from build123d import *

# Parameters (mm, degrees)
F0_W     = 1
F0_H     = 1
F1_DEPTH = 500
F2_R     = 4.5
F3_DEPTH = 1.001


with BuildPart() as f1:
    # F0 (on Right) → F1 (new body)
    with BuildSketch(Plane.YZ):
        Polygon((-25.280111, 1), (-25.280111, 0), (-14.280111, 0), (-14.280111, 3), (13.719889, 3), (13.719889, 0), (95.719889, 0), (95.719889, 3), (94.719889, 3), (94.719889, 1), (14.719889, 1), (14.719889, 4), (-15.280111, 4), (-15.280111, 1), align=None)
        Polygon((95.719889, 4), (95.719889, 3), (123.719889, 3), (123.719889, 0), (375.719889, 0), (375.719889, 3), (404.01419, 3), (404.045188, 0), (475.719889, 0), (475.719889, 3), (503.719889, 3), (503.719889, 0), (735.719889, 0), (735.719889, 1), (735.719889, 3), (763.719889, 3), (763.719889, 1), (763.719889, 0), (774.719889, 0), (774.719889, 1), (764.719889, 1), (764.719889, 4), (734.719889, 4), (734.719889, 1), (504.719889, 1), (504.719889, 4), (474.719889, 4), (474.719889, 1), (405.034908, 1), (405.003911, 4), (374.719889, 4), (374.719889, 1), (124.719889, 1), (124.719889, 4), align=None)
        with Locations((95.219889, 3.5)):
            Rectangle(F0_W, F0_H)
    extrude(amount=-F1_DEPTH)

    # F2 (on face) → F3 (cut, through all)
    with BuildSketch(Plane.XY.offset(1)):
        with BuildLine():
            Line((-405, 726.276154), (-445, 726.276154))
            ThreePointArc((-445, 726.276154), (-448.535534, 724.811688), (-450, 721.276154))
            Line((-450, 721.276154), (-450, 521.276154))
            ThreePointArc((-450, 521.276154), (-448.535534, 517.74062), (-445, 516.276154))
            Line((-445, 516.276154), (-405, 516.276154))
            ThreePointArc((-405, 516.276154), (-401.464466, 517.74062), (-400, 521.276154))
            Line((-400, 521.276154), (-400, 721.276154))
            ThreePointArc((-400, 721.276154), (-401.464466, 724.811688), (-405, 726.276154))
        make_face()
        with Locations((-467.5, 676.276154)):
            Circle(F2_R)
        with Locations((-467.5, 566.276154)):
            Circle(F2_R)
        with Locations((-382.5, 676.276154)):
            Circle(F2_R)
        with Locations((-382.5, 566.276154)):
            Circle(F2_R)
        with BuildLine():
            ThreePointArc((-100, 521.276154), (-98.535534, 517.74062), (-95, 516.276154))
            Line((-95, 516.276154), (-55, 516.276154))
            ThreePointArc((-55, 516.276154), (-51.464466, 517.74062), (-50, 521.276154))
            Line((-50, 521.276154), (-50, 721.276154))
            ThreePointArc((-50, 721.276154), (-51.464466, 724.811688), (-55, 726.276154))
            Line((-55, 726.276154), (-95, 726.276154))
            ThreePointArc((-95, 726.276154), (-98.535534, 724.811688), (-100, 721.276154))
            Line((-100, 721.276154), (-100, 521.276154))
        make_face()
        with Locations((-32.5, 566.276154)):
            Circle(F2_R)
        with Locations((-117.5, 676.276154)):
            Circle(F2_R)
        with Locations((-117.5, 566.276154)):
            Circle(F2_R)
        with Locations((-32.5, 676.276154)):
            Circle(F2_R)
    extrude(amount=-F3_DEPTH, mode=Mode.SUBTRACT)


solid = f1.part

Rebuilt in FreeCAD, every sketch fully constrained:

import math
import FreeCAD as App
import Part
import Sketcher
from FreeCAD import Vector
Q = App.Units.Quantity

doc = App.newDocument("Part")
body = doc.addObject("PartDesign::Body", "Body")

sketch1 = doc.addObject("Sketcher::SketchObject", "Sketch")
body.addObject(sketch1)
sketch1.AttachmentSupport = (doc.YZ_Plane, [""])
sketch1.MapMode = "FlatFace"
sketch1.addGeometry([
    Part.LineSegment(Vector(-15.280111, 1, 0), Vector(-25.280111, 1, 0)),
    Part.LineSegment(Vector(-25.280111, 1, 0), Vector(-25.280111, 0, 0)),
    Part.LineSegment(Vector(-25.280111, 0, 0), Vector(-14.280111, 0, 0)),
    Part.LineSegment(Vector(-14.280111, 0, 0), Vector(-14.280111, 3, 0)),
    Part.LineSegment(Vector(-14.280111, 3, 0), Vector(13.719889, 3, 0)),
    Part.LineSegment(Vector(13.719889, 3, 0), Vector(13.719889, 0, 0)),
    Part.LineSegment(Vector(13.719889, 0, 0), Vector(95.719889, 0, 0)),
    Part.LineSegment(Vector(95.719889, 0, 0), Vector(95.719889, 3, 0)),
    Part.LineSegment(Vector(95.719889, 3, 0), Vector(123.719889, 3, 0)),
    Part.LineSegment(Vector(123.719889, 3, 0), Vector(123.719889, 0, 0)),
    Part.LineSegment(Vector(123.719889, 0, 0), Vector(375.719889, 0, 0)),
    Part.LineSegment(Vector(375.719889, 0, 0), Vector(375.719889, 3, 0)),
    Part.LineSegment(Vector(375.719889, 3, 0), Vector(404.01419, 3, 0)),
    Part.LineSegment(Vector(404.01419, 3, 0), Vector(404.045188, 0, 0)),
    Part.LineSegment(Vector(404.045188, 0, 0), Vector(475.719889, 0, 0)),
    Part.LineSegment(Vector(475.719889, 0, 0), Vector(475.719889, 3, 0)),
    Part.LineSegment(Vector(475.719889, 3, 0), Vector(503.719889, 3, 0)),
    Part.LineSegment(Vector(503.719889, 3, 0), Vector(503.719889, 0, 0)),
    Part.LineSegment(Vector(503.719889, 0, 0), Vector(735.719889, 0, 0)),
    Part.LineSegment(Vector(735.719889, 0, 0), Vector(735.719889, 3, 0)),
    Part.LineSegment(Vector(735.719889, 3, 0), Vector(763.719889, 3, 0)),
    Part.LineSegment(Vector(763.719889, 3, 0), Vector(763.719889, 0, 0)),
    Part.LineSegment(Vector(763.719889, 0, 0), Vector(774.719889, 0, 0)),
    Part.LineSegment(Vector(774.719889, 0, 0), Vector(774.719889, 1, 0)),
    Part.LineSegment(Vector(774.719889, 1, 0), Vector(764.719889, 1, 0)),
    Part.LineSegment(Vector(764.719889, 1, 0), Vector(764.719889, 4, 0)),
    Part.LineSegment(Vector(764.719889, 4, 0), Vector(734.719889, 4, 0)),
    Part.LineSegment(Vector(734.719889, 4, 0), Vector(734.719889, 1, 0)),
    Part.LineSegment(Vector(734.719889, 1, 0), Vector(504.719889, 1, 0)),
    Part.LineSegment(Vector(504.719889, 1, 0), Vector(504.719889, 4, 0)),
    Part.LineSegment(Vector(504.719889, 4, 0), Vector(474.719889, 4, 0)),
    Part.LineSegment(Vector(474.719889, 4, 0), Vector(474.719889, 1, 0)),
    Part.LineSegment(Vector(474.719889, 1, 0), Vector(405.034908, 1, 0)),
    Part.LineSegment(Vector(405.034908, 1, 0), Vector(405.003911, 4, 0)),
    Part.LineSegment(Vector(405.003911, 4, 0), Vector(374.719889, 4, 0)),
    Part.LineSegment(Vector(374.719889, 4, 0), Vector(374.719889, 1, 0)),
    Part.LineSegment(Vector(374.719889, 1, 0), Vector(124.719889, 1, 0)),
    Part.LineSegment(Vector(124.719889, 1, 0), Vector(124.719889, 4, 0)),
    Part.LineSegment(Vector(124.719889, 4, 0), Vector(94.719889, 4, 0)),
    Part.LineSegment(Vector(94.719889, 4, 0), Vector(94.719889, 1, 0)),
    Part.LineSegment(Vector(94.719889, 1, 0), Vector(14.719889, 1, 0)),
    Part.LineSegment(Vector(14.719889, 1, 0), Vector(14.719889, 4, 0)),
    Part.LineSegment(Vector(14.719889, 4, 0), Vector(-15.280111, 4, 0)),
    Part.LineSegment(Vector(-15.280111, 4, 0), Vector(-15.280111, 1, 0)),
], False)
sketch1.addConstraint([
    Sketcher.Constraint("Coincident", 0, 2, 1, 1),
    Sketcher.Constraint("Coincident", 1, 2, 2, 1),
    Sketcher.Constraint("Coincident", 2, 2, 3, 1),
    Sketcher.Constraint("Coincident", 3, 2, 4, 1),
    Sketcher.Constraint("Coincident", 4, 2, 5, 1),
    Sketcher.Constraint("Coincident", 5, 2, 6, 1),
    Sketcher.Constraint("Coincident", 6, 2, 7, 1),
    Sketcher.Constraint("Coincident", 7, 2, 8, 1),
    Sketcher.Constraint("Coincident", 8, 2, 9, 1),
    Sketcher.Constraint("Coincident", 9, 2, 10, 1),
    Sketcher.Constraint("Coincident", 10, 2, 11, 1),
    Sketcher.Constraint("Coincident", 11, 2, 12, 1),
    Sketcher.Constraint("Coincident", 12, 2, 13, 1),
    Sketcher.Constraint("Coincident", 13, 2, 14, 1),
    Sketcher.Constraint("Coincident", 14, 2, 15, 1),
    Sketcher.Constraint("Coincident", 15, 2, 16, 1),
    Sketcher.Constraint("Coincident", 16, 2, 17, 1),
    Sketcher.Constraint("Coincident", 17, 2, 18, 1),
    Sketcher.Constraint("Coincident", 18, 2, 19, 1),
    Sketcher.Constraint("Coincident", 19, 2, 20, 1),
    Sketcher.Constraint("Coincident", 20, 2, 21, 1),
    Sketcher.Constraint("Coincident", 21, 2, 22, 1),
    Sketcher.Constraint("Coincident", 22, 2, 23, 1),
    Sketcher.Constraint("Coincident", 23, 2, 24, 1),
    Sketcher.Constraint("Coincident", 24, 2, 25, 1),
    Sketcher.Constraint("Coincident", 25, 2, 26, 1),
    Sketcher.Constraint("Coincident", 26, 2, 27, 1),
    Sketcher.Constraint("Coincident", 27, 2, 28, 1),
    Sketcher.Constraint("Coincident", 28, 2, 29, 1),
    Sketcher.Constraint("Coincident", 29, 2, 30, 1),
    Sketcher.Constraint("Coincident", 30, 2, 31, 1),
    Sketcher.Constraint("Coincident", 31, 2, 32, 1),
    Sketcher.Constraint("Coincident", 32, 2, 33, 1),
    Sketcher.Constraint("Coincident", 33, 2, 34, 1),
    Sketcher.Constraint("Coincident", 34, 2, 35, 1),
    Sketcher.Constraint("Coincident", 35, 2, 36, 1),
    Sketcher.Constraint("Coincident", 36, 2, 37, 1),
    Sketcher.Constraint("Coincident", 37, 2, 38, 1),
    Sketcher.Constraint("Coincident", 38, 2, 39, 1),
    Sketcher.Constraint("Coincident", 39, 2, 40, 1),
    Sketcher.Constraint("Coincident", 40, 2, 41, 1),
    Sketcher.Constraint("Coincident", 41, 2, 42, 1),
    Sketcher.Constraint("Coincident", 42, 2, 43, 1),
    Sketcher.Constraint("Coincident", 43, 2, 0, 1),
    Sketcher.Constraint("Horizontal", 0),
    Sketcher.Constraint("Vertical", 1),
    Sketcher.Constraint("Horizontal", 2),
    Sketcher.Constraint("Vertical", 3),
    Sketcher.Constraint("Horizontal", 4),
    Sketcher.Constraint("Vertical", 5),
    Sketcher.Constraint("Horizontal", 6),
    Sketcher.Constraint("Vertical", 7),
    Sketcher.Constraint("Horizontal", 8),
    Sketcher.Constraint("Vertical", 9),
    Sketcher.Constraint("Horizontal", 10),
    Sketcher.Constraint("Vertical", 11),
    Sketcher.Constraint("Horizontal", 12),
    Sketcher.Constraint("Horizontal", 14),
    Sketcher.Constraint("Vertical", 15),
    Sketcher.Constraint("Horizontal", 16),
    Sketcher.Constraint("Vertical", 17),
    Sketcher.Constraint("Horizontal", 18),
    Sketcher.Constraint("Vertical", 19),
    Sketcher.Constraint("Horizontal", 20),
    Sketcher.Constraint("Vertical", 21),
    Sketcher.Constraint("Horizontal", 22),
    Sketcher.Constraint("Vertical", 23),
    Sketcher.Constraint("Horizontal", 24),
    Sketcher.Constraint("Vertical", 25),
    Sketcher.Constraint("Horizontal", 26),
    Sketcher.Constraint("Vertical", 27),
    Sketcher.Constraint("Horizontal", 28),
    Sketcher.Constraint("Vertical", 29),
    Sketcher.Constraint("Horizontal", 30),
    Sketcher.Constraint("Vertical", 31),
    Sketcher.Constraint("Horizontal", 32),
    Sketcher.Constraint("Horizontal", 34),
    Sketcher.Constraint("Vertical", 35),
    Sketcher.Constraint("Horizontal", 36),
    Sketcher.Constraint("Vertical", 37),
    Sketcher.Constraint("Horizontal", 38),
    Sketcher.Constraint("Vertical", 39),
    Sketcher.Constraint("Horizontal", 40),
    Sketcher.Constraint("Vertical", 41),
    Sketcher.Constraint("Horizontal", 42),
    Sketcher.Constraint("Vertical", 43),
    Sketcher.Constraint("PointOnObject", 1, 2, -1),
    Sketcher.Constraint("PointOnObject", 5, 2, -1),
    Sketcher.Constraint("PointOnObject", 9, 2, -1),
    Sketcher.Constraint("PointOnObject", 13, 2, -1),
    Sketcher.Constraint("PointOnObject", 17, 2, -1),
    Sketcher.Constraint("PointOnObject", 21, 2, -1),
    Sketcher.Constraint("Parallel", 13, 33),
    Sketcher.Constraint("Horizontal", 4, 2, 7, 2),
    Sketcher.Constraint("Horizontal", 8, 2, 11, 2),
    Sketcher.Constraint("Horizontal", 12, 2, 15, 2),
    Sketcher.Constraint("Horizontal", 16, 2, 19, 2),
    Sketcher.Constraint("Horizontal", 0, 2, 23, 2),
    Sketcher.Constraint("Horizontal", 24, 2, 27, 2),
    Sketcher.Constraint("Horizontal", 26, 2, 29, 2),
    Sketcher.Constraint("Horizontal", 28, 2, 31, 2),
    Sketcher.Constraint("Horizontal", 30, 2, 33, 2),
    Sketcher.Constraint("Horizontal", 32, 2, 35, 2),
    Sketcher.Constraint("Horizontal", 34, 2, 37, 2),
    Sketcher.Constraint("Horizontal", 36, 2, 39, 2),
    Sketcher.Constraint("Horizontal", 38, 2, 41, 2),
    Sketcher.Constraint("Equal", 4, 8),
    Sketcher.Constraint("Equal", 8, 16),
    Sketcher.Constraint("Equal", 16, 20),
    Sketcher.Constraint("Equal", 2, 22),
    Sketcher.Constraint("Equal", 0, 24),
    Sketcher.Constraint("Equal", 26, 30),
    Sketcher.Constraint("Equal", 30, 38),
    Sketcher.Constraint("Equal", 38, 42),
    Sketcher.Constraint("Equal", 21, 25),
    Sketcher.Constraint("DistanceX", 0, 2, 0, 1, Q("10 mm")),
    Sketcher.Constraint("DistanceX", 2, 1, 2, 2, Q("11 mm")),
    Sketcher.Constraint("DistanceX", 4, 1, 4, 2, Q("28 mm")),
    Sketcher.Constraint("DistanceX", 6, 1, 6, 2, Q("82 mm")),
    Sketcher.Constraint("DistanceX", 10, 1, 10, 2, Q("252 mm")),
    Sketcher.Constraint("DistanceX", 18, 1, 18, 2, Q("232 mm")),
    Sketcher.Constraint("DistanceX", 26, 2, 26, 1, Q("30 mm")),
    Sketcher.Constraint("DistanceX", 28, 2, 28, 1, Q("230 mm")),
    Sketcher.Constraint("DistanceX", 36, 2, 36, 1, Q("250 mm")),
    Sketcher.Constraint("DistanceX", 40, 2, 40, 1, Q("80 mm")),
    Sketcher.Constraint("DistanceY", 1, 2, 1, 1, Q("1 mm")),
    Sketcher.Constraint("DistanceY", 3, 1, 3, 2, Q("3 mm")),
    Sketcher.Constraint("DistanceX", 10, 2, 14, 2, Q("100 mm")),
    Sketcher.Constraint("DistanceX", 12, 1, 12, 2, Q("28.294301 mm")),
    Sketcher.Constraint("DistanceX", 14, 1, 14, 2, Q("71.674701 mm")),
    Sketcher.Constraint("DistanceX", 32, 2, 32, 1, Q("69.684981 mm")),
    Sketcher.Constraint("DistanceX", 0, 2, -1, 1, Q("25.280111 mm")),
])
pad1 = doc.addObject("PartDesign::Pad", "Pad")
body.addObject(pad1)
pad1.Profile = sketch1
pad1.Length = 500
pad1.Reversed = True

sketch2 = doc.addObject("Sketcher::SketchObject", "Sketch001")
body.addObject(sketch2)
sketch2.AttachmentSupport = (doc.XY_Plane, [""])
sketch2.MapMode = "FlatFace"
sketch2.AttachmentOffset = App.Placement(Vector(0, 0, 1), App.Rotation())
sketch2.addGeometry([
    Part.LineSegment(Vector(-405, 726.276154, 0), Vector(-445, 726.276154, 0)),
    Part.ArcOfCircle(Part.Circle(Vector(-445, 721.276154, 0), Vector(0, 0, 1), 5), math.radians(89.999996), math.radians(180.000004)),
    Part.LineSegment(Vector(-450, 721.276154, 0), Vector(-450, 521.276154, 0)),
    Part.ArcOfCircle(Part.Circle(Vector(-445, 521.276154, 0), Vector(0, 0, 1), 5), math.radians(179.999996), math.radians(270.000004)),
    Part.LineSegment(Vector(-445, 516.276154, 0), Vector(-405, 516.276154, 0)),
    Part.ArcOfCircle(Part.Circle(Vector(-405, 521.276154, 0), Vector(0, 0, 1), 5), math.radians(-90.000004), math.radians(0.000004)),
    Part.LineSegment(Vector(-400, 521.276154, 0), Vector(-400, 721.276154, 0)),
    Part.ArcOfCircle(Part.Circle(Vector(-405, 721.276154, 0), Vector(0, 0, 1), 5), math.radians(-0.000004), math.radians(90.000004)),
    Part.Circle(Vector(-467.5, 676.276154, 0), Vector(0, 0, 1), 4.5),
    Part.Circle(Vector(-467.5, 566.276154, 0), Vector(0, 0, 1), 4.5),
    Part.Circle(Vector(-382.5, 676.276154, 0), Vector(0, 0, 1), 4.5),
    Part.Circle(Vector(-382.5, 566.276154, 0), Vector(0, 0, 1), 4.5),
    Part.ArcOfCircle(Part.Circle(Vector(-95, 521.276154, 0), Vector(0, 0, 1), 5), math.radians(179.999996), math.radians(270.000004)),
    Part.LineSegment(Vector(-95, 516.276154, 0), Vector(-55, 516.276154, 0)),
    Part.ArcOfCircle(Part.Circle(Vector(-55, 521.276154, 0), Vector(0, 0, 1), 5), math.radians(-90.000004), math.radians(0.000004)),
    Part.LineSegment(Vector(-50, 521.276154, 0), Vector(-50, 721.276154, 0)),
    Part.ArcOfCircle(Part.Circle(Vector(-55, 721.276154, 0), Vector(0, 0, 1), 5), math.radians(-0.000004), math.radians(90.000004)),
    Part.LineSegment(Vector(-55, 726.276154, 0), Vector(-95, 726.276154, 0)),
    Part.ArcOfCircle(Part.Circle(Vector(-95, 721.276154, 0), Vector(0, 0, 1), 5), math.radians(89.999996), math.radians(180.000004)),
    Part.LineSegment(Vector(-100, 721.276154, 0), Vector(-100, 521.276154, 0)),
    Part.Circle(Vector(-32.5, 566.276154, 0), Vector(0, 0, 1), 4.5),
    Part.Circle(Vector(-117.5, 676.276154, 0), Vector(0, 0, 1), 4.5),
    Part.Circle(Vector(-117.5, 566.276154, 0), Vector(0, 0, 1), 4.5),
    Part.Circle(Vector(-32.5, 676.276154, 0), Vector(0, 0, 1), 4.5),
], False)
sketch2.addConstraint([
    Sketcher.Constraint("Tangent", 0, 2, 1, 1),
    Sketcher.Constraint("Tangent", 1, 2, 2, 1),
    Sketcher.Constraint("Tangent", 2, 2, 3, 1),
    Sketcher.Constraint("Tangent", 3, 2, 4, 1),
    Sketcher.Constraint("Tangent", 4, 2, 5, 1),
    Sketcher.Constraint("Tangent", 5, 2, 6, 1),
    Sketcher.Constraint("Tangent", 6, 2, 7, 1),
    Sketcher.Constraint("Tangent", 7, 2, 0, 1),
    Sketcher.Constraint("Tangent", 12, 2, 13, 1),
    Sketcher.Constraint("Tangent", 13, 2, 14, 1),
    Sketcher.Constraint("Tangent", 14, 2, 15, 1),
    Sketcher.Constraint("Tangent", 15, 2, 16, 1),
    Sketcher.Constraint("Tangent", 16, 2, 17, 1),
    Sketcher.Constraint("Tangent", 17, 2, 18, 1),
    Sketcher.Constraint("Tangent", 18, 2, 19, 1),
    Sketcher.Constraint("Tangent", 19, 2, 12, 1),
    Sketcher.Constraint("Horizontal", 0),
    Sketcher.Constraint("Vertical", 2),
    Sketcher.Constraint("Horizontal", 4),
    Sketcher.Constraint("Vertical", 6),
    Sketcher.Constraint("Horizontal", 13),
    Sketcher.Constraint("Vertical", 15),
    Sketcher.Constraint("Horizontal", 17),
    Sketcher.Constraint("Vertical", 19),
    Sketcher.Constraint("Equal", 1, 3),
    Sketcher.Constraint("Equal", 3, 5),
    Sketcher.Constraint("Equal", 5, 7),
    Sketcher.Constraint("Equal", 8, 9),
    Sketcher.Constraint("Equal", 9, 10),
    Sketcher.Constraint("Equal", 10, 11),
    Sketcher.Constraint("Equal", 7, 12),
    Sketcher.Constraint("Equal", 12, 14),
    Sketcher.Constraint("Equal", 14, 16),
    Sketcher.Constraint("Equal", 16, 18),
    Sketcher.Constraint("Equal", 11, 20),
    Sketcher.Constraint("Equal", 20, 21),
    Sketcher.Constraint("Equal", 21, 22),
    Sketcher.Constraint("Equal", 22, 23),
    Sketcher.Constraint("Horizontal", 8, 3, 10, 3),
    Sketcher.Constraint("Horizontal", 9, 3, 11, 3),
    Sketcher.Constraint("Horizontal", 5, 3, 12, 3),
    Sketcher.Constraint("Horizontal", 7, 3, 16, 3),
    Sketcher.Constraint("Horizontal", 11, 3, 20, 3),
    Sketcher.Constraint("Horizontal", 10, 3, 21, 3),
    Sketcher.Constraint("Horizontal", 20, 3, 22, 3),
    Sketcher.Constraint("Horizontal", 21, 3, 23, 3),
    Sketcher.Constraint("Vertical", 8, 3, 9, 3),
    Sketcher.Constraint("Vertical", 10, 3, 11, 3),
    Sketcher.Constraint("Vertical", 21, 3, 22, 3),
    Sketcher.Constraint("Vertical", 20, 3, 23, 3),
    Sketcher.Constraint("Equal", 4, 13),
    Sketcher.Constraint("Diameter", 8, Q("9 mm")),
    Sketcher.Constraint("Radius", 1, Q("5 mm")),
    Sketcher.Constraint("DistanceX", 0, 2, 0, 1, Q("40 mm")),
    Sketcher.Constraint("DistanceY", 2, 2, 2, 1, Q("200 mm")),
    Sketcher.Constraint("DistanceX", 1, 3, -1, 1, Q("445 mm")),
    Sketcher.Constraint("DistanceX", 12, 3, -1, 1, Q("95 mm")),
    Sketcher.Constraint("DistanceY", 8, 3, 1, 3, Q("45 mm")),
    Sketcher.Constraint("DistanceY", 3, 3, 9, 3, Q("45 mm")),
    Sketcher.Constraint("DistanceX", 8, 3, 10, 3, Q("85 mm")),
    Sketcher.Constraint("DistanceX", 11, 3, 20, 3, Q("350 mm")),
    Sketcher.Constraint("DistanceX", 21, 3, 20, 3, Q("85 mm")),
    Sketcher.Constraint("DistanceX", 8, 3, -1, 1, Q("467.5 mm")),
    Sketcher.Constraint("DistanceY", -1, 1, 1, 3, Q("721.276154 mm")),
])
pocket1 = doc.addObject("PartDesign::Pocket", "Pocket")
body.addObject(pocket1)
pocket1.Profile = sketch2
pocket1.Type = "ThroughAll"

doc.recompute()
